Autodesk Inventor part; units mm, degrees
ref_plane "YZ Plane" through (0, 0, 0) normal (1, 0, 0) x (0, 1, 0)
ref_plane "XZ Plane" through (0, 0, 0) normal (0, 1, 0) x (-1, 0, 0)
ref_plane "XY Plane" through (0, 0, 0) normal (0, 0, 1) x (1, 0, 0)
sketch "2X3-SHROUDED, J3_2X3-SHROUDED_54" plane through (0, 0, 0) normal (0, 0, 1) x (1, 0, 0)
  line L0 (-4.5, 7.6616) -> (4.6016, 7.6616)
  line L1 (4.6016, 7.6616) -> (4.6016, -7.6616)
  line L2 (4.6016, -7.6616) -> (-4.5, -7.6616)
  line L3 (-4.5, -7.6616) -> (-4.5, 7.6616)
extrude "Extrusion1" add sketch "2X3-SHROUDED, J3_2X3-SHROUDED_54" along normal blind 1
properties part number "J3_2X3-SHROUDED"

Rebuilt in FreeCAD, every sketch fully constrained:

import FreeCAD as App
import Part
import Sketcher
from FreeCAD import Vector
Q = App.Units.Quantity

doc = App.newDocument("Part")
body = doc.addObject("PartDesign::Body", "Body")

# Sketch on XY plane
sketch1 = body.newObject("Sketcher::SketchObject", "Sketch")
sketch1.AttachmentSupport = (doc.getObject("XY_Plane"), [""])
sketch1.MapMode = "FlatFace"
sketch1.addGeometry(Part.LineSegment(Vector(5, 8, 0), Vector(-4, 8, 0)), False)
sketch1.addGeometry(Part.LineSegment(Vector(-4, 8, 0), Vector(-4, -8, 0)), False)
sketch1.addGeometry(Part.LineSegment(Vector(-4, -8, 0), Vector(5, -8, 0)), False)
sketch1.addGeometry(Part.LineSegment(Vector(5, -8, 0), Vector(5, 8, 0)), False)
sketch1.addConstraint(Sketcher.Constraint("Coincident", 0, 2, 1, 1))
sketch1.addConstraint(Sketcher.Constraint("Coincident", 1, 2, 2, 1))
sketch1.addConstraint(Sketcher.Constraint("Coincident", 2, 2, 3, 1))
sketch1.addConstraint(Sketcher.Constraint("Coincident", 3, 2, 0, 1))
sketch1.addConstraint(Sketcher.Constraint("Horizontal", 0))
sketch1.addConstraint(Sketcher.Constraint("Vertical", 1))
sketch1.addConstraint(Sketcher.Constraint("Horizontal", 2))
sketch1.addConstraint(Sketcher.Constraint("Vertical", 3))
sketch1.addConstraint(Sketcher.Constraint("DistanceX", 0, 2, -1, 1, Q("4.5 mm")))
sketch1.addConstraint(Sketcher.Constraint("DistanceX", 0, 2, 0, 1, Q("9.1016 mm")))
sketch1.addConstraint(Sketcher.Constraint("DistanceY", 1, 2, 1, 1, Q("15.3232 mm")))
sketch1.addConstraint(Sketcher.Constraint("DistanceY", -1, 1, 0, 2, Q("7.6616 mm")))
pad1 = body.newObject("PartDesign::Pad", "Pad")
pad1.Profile = sketch1
pad1.Length = 1

doc.recompute()
